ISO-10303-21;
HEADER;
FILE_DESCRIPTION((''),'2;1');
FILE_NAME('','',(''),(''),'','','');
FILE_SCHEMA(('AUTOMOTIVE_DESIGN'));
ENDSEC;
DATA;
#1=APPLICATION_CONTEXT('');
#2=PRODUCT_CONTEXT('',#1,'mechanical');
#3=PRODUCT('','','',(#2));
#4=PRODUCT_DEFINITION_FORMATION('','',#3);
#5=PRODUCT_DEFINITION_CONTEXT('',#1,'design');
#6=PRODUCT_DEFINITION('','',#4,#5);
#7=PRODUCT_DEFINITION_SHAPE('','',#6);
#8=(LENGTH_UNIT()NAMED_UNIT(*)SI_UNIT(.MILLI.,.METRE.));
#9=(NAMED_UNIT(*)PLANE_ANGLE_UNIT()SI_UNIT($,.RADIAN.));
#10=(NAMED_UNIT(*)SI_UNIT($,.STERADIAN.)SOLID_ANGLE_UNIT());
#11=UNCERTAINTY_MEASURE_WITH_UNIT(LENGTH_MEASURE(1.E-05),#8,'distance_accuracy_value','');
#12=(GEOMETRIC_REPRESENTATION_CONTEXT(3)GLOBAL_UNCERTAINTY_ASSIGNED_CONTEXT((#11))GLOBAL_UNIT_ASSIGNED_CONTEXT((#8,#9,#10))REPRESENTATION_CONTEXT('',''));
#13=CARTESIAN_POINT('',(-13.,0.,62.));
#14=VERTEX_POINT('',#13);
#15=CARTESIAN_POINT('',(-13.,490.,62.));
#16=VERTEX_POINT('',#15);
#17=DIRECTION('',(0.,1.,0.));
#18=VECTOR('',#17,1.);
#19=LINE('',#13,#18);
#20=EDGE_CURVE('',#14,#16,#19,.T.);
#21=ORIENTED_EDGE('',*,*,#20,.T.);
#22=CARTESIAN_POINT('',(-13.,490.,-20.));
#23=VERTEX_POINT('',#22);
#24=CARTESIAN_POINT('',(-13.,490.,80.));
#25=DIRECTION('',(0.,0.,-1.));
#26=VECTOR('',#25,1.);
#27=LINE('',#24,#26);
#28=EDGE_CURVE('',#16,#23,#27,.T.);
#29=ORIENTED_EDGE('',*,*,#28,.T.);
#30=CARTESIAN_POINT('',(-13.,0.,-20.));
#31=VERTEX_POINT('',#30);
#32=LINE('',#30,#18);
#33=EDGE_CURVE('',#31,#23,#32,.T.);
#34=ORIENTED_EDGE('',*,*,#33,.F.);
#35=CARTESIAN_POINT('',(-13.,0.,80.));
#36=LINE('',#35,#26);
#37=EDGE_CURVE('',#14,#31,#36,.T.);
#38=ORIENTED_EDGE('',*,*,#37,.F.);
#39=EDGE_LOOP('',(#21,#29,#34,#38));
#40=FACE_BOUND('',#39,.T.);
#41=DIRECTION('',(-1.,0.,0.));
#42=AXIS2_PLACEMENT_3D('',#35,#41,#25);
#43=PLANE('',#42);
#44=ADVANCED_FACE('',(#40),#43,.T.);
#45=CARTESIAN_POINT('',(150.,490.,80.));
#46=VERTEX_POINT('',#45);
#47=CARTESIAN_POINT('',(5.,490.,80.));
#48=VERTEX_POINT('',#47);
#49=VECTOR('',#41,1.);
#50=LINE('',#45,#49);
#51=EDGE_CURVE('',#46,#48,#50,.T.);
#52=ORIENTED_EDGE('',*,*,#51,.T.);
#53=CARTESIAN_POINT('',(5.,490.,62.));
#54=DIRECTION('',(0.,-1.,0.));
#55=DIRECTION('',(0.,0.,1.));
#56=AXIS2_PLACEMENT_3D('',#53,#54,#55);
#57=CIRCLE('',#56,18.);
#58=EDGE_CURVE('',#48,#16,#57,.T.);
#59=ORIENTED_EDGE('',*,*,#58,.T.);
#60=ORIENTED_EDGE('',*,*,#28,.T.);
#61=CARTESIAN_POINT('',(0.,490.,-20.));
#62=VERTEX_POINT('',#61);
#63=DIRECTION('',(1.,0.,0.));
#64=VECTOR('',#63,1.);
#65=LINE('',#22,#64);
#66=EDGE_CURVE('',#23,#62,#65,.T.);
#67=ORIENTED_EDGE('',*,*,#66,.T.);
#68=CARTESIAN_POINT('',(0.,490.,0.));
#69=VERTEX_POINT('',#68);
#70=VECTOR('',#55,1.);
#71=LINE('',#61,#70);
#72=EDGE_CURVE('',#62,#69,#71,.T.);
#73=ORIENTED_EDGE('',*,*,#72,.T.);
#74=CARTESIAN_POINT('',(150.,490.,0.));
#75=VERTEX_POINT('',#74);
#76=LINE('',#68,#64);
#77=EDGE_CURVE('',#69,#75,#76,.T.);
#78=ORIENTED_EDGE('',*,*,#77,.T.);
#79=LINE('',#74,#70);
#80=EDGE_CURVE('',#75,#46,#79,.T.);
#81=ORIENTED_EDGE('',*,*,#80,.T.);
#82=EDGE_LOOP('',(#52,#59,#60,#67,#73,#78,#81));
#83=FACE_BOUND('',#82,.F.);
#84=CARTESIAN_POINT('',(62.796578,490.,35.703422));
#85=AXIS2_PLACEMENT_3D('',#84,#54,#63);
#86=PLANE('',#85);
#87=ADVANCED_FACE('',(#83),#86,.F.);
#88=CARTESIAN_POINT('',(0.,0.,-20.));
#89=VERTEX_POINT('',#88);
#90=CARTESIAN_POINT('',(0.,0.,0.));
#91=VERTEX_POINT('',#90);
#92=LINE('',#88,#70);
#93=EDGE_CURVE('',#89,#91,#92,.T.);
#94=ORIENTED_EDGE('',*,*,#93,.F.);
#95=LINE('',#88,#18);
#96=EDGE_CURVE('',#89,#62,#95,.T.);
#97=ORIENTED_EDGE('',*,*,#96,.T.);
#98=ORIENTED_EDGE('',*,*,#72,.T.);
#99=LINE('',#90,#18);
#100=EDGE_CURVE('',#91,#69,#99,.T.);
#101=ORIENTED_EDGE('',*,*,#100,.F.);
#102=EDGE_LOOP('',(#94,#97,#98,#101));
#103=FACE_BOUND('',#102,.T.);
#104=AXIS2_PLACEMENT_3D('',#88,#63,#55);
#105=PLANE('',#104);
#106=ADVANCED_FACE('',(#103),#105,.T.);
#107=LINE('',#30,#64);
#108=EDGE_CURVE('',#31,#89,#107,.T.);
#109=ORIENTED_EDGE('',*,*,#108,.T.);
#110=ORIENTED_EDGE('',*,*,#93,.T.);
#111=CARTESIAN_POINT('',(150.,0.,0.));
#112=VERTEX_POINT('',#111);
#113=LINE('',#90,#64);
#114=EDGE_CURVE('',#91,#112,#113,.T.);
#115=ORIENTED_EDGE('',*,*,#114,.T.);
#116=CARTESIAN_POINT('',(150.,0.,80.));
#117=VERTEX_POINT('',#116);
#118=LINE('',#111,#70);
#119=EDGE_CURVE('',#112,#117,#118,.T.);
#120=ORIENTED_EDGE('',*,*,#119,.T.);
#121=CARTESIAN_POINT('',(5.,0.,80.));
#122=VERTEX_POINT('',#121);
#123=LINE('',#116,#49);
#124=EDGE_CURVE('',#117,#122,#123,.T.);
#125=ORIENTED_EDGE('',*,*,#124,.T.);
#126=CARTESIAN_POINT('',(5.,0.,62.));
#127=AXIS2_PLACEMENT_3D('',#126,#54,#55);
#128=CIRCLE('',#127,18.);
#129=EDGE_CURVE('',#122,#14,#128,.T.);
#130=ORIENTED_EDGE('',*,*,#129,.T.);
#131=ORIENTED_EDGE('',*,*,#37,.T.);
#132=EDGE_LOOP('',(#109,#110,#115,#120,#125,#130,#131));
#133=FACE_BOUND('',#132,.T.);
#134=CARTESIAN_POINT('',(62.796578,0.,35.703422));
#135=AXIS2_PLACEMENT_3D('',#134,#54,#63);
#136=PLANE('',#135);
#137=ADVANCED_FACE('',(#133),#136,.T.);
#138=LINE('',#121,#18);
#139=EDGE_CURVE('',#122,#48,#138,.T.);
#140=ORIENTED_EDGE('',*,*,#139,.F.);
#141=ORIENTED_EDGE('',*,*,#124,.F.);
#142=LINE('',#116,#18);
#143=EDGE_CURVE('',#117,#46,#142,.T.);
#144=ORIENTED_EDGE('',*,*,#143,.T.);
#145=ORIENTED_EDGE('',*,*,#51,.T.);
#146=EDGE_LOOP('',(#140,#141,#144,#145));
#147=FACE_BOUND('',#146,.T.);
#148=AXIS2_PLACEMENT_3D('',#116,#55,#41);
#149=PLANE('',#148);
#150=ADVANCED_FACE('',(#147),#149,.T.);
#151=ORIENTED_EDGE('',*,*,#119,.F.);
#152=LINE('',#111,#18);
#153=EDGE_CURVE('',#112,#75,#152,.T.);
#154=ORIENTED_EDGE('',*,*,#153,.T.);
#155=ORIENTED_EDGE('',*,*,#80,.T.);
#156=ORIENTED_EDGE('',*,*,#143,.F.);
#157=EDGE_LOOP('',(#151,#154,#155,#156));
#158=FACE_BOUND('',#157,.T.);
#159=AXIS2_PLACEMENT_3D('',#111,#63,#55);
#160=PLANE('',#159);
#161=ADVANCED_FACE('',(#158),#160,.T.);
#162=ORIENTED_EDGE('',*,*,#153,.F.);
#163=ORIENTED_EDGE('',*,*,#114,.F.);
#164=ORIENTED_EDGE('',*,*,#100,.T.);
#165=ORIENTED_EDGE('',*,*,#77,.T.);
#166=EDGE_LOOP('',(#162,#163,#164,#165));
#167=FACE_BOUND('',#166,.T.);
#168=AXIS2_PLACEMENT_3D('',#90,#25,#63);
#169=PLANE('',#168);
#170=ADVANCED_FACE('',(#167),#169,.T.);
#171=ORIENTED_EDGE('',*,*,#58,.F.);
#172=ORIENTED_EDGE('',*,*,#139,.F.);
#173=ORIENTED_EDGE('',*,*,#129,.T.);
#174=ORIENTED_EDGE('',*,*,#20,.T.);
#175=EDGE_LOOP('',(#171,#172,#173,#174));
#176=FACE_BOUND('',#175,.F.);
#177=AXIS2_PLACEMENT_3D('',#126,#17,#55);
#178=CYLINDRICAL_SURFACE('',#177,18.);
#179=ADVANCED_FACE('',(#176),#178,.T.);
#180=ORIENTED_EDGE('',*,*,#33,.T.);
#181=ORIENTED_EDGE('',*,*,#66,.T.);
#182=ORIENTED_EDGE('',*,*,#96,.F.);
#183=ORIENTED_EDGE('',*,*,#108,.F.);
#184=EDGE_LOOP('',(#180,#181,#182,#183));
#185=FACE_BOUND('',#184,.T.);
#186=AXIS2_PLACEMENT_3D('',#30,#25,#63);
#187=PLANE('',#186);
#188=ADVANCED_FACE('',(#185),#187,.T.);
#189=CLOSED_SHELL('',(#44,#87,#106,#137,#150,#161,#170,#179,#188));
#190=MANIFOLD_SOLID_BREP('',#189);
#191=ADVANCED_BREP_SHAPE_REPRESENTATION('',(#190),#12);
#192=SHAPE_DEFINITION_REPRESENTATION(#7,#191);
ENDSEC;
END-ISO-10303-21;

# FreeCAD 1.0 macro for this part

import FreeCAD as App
import Part
import Sketcher

V = App.Vector
Q = App.Units.Quantity


def edges_at(feature, points):
    """Names of the edges that pass closest to the given points."""
    edges = feature.Shape.Edges
    near = lambda p: min(range(len(edges)), key=lambda i: edges[i].distToShape(Part.Vertex(*p))[0])
    return sorted({f"Edge{near(p) + 1}" for p in points})

doc = App.newDocument("Part")
body = doc.addObject("PartDesign::Body", "Body")

# Sketch on XZ plane
sketch1 = body.newObject("Sketcher::SketchObject", "Sketch")
sketch1.AttachmentSupport = (doc.getObject("XZ_Plane"), [""])
sketch1.MapMode = "FlatFace"
sketch1.addGeometry([
    Part.LineSegment(V(0, 0, 0), V(150, 0, 0)),  # 0
    Part.LineSegment(V(150, 0, 0), V(150, 80, 0)),  # 1
    Part.LineSegment(V(150, 80, 0), V(-13, 80, 0)),  # 2
    Part.LineSegment(V(-13, 80, 0), V(-13, -20, 0)),  # 3
    Part.LineSegment(V(-13, -20, 0), V(0, -20, 0)),  # 4
    Part.LineSegment(V(0, -20, 0), V(0, 0, 0)),  # 5
], False)
sketch1.addConstraint([
    Sketcher.Constraint("Coincident", 0, 2, 1, 1),
    Sketcher.Constraint("Coincident", 1, 2, 2, 1),
    Sketcher.Constraint("Coincident", 2, 2, 3, 1),
    Sketcher.Constraint("Coincident", 3, 2, 4, 1),
    Sketcher.Constraint("Coincident", 4, 2, 5, 1),
    Sketcher.Constraint("Coincident", 5, 2, 0, 1),
    Sketcher.Constraint("Horizontal", 0),
    Sketcher.Constraint("Vertical", 1),
    Sketcher.Constraint("Horizontal", 2),
    Sketcher.Constraint("Vertical", 3),
    Sketcher.Constraint("Horizontal", 4),
    Sketcher.Constraint("Vertical", 5),
    Sketcher.Constraint("Coincident", 5, 2, -1, 1),
    Sketcher.Constraint("DistanceX", 0, 1, 0, 2, Q("150 mm")),
    Sketcher.Constraint("DistanceX", 2, 2, 2, 1, Q("163 mm")),
    Sketcher.Constraint("DistanceY", 1, 1, 1, 2, Q("80 mm")),
    Sketcher.Constraint("DistanceY", 3, 2, 3, 1, Q("100 mm")),
])
pad1 = body.newObject("PartDesign::Pad", "Pad")
pad1.Profile = sketch1
pad1.Length = 490
pad1.Reversed = True
doc.recompute()

fillet = body.newObject("PartDesign::Fillet", "Fillet")
fillet.Base = (pad1, edges_at(pad1, [(-13, 245, 80)]))
fillet.Radius = 18

doc.recompute()
